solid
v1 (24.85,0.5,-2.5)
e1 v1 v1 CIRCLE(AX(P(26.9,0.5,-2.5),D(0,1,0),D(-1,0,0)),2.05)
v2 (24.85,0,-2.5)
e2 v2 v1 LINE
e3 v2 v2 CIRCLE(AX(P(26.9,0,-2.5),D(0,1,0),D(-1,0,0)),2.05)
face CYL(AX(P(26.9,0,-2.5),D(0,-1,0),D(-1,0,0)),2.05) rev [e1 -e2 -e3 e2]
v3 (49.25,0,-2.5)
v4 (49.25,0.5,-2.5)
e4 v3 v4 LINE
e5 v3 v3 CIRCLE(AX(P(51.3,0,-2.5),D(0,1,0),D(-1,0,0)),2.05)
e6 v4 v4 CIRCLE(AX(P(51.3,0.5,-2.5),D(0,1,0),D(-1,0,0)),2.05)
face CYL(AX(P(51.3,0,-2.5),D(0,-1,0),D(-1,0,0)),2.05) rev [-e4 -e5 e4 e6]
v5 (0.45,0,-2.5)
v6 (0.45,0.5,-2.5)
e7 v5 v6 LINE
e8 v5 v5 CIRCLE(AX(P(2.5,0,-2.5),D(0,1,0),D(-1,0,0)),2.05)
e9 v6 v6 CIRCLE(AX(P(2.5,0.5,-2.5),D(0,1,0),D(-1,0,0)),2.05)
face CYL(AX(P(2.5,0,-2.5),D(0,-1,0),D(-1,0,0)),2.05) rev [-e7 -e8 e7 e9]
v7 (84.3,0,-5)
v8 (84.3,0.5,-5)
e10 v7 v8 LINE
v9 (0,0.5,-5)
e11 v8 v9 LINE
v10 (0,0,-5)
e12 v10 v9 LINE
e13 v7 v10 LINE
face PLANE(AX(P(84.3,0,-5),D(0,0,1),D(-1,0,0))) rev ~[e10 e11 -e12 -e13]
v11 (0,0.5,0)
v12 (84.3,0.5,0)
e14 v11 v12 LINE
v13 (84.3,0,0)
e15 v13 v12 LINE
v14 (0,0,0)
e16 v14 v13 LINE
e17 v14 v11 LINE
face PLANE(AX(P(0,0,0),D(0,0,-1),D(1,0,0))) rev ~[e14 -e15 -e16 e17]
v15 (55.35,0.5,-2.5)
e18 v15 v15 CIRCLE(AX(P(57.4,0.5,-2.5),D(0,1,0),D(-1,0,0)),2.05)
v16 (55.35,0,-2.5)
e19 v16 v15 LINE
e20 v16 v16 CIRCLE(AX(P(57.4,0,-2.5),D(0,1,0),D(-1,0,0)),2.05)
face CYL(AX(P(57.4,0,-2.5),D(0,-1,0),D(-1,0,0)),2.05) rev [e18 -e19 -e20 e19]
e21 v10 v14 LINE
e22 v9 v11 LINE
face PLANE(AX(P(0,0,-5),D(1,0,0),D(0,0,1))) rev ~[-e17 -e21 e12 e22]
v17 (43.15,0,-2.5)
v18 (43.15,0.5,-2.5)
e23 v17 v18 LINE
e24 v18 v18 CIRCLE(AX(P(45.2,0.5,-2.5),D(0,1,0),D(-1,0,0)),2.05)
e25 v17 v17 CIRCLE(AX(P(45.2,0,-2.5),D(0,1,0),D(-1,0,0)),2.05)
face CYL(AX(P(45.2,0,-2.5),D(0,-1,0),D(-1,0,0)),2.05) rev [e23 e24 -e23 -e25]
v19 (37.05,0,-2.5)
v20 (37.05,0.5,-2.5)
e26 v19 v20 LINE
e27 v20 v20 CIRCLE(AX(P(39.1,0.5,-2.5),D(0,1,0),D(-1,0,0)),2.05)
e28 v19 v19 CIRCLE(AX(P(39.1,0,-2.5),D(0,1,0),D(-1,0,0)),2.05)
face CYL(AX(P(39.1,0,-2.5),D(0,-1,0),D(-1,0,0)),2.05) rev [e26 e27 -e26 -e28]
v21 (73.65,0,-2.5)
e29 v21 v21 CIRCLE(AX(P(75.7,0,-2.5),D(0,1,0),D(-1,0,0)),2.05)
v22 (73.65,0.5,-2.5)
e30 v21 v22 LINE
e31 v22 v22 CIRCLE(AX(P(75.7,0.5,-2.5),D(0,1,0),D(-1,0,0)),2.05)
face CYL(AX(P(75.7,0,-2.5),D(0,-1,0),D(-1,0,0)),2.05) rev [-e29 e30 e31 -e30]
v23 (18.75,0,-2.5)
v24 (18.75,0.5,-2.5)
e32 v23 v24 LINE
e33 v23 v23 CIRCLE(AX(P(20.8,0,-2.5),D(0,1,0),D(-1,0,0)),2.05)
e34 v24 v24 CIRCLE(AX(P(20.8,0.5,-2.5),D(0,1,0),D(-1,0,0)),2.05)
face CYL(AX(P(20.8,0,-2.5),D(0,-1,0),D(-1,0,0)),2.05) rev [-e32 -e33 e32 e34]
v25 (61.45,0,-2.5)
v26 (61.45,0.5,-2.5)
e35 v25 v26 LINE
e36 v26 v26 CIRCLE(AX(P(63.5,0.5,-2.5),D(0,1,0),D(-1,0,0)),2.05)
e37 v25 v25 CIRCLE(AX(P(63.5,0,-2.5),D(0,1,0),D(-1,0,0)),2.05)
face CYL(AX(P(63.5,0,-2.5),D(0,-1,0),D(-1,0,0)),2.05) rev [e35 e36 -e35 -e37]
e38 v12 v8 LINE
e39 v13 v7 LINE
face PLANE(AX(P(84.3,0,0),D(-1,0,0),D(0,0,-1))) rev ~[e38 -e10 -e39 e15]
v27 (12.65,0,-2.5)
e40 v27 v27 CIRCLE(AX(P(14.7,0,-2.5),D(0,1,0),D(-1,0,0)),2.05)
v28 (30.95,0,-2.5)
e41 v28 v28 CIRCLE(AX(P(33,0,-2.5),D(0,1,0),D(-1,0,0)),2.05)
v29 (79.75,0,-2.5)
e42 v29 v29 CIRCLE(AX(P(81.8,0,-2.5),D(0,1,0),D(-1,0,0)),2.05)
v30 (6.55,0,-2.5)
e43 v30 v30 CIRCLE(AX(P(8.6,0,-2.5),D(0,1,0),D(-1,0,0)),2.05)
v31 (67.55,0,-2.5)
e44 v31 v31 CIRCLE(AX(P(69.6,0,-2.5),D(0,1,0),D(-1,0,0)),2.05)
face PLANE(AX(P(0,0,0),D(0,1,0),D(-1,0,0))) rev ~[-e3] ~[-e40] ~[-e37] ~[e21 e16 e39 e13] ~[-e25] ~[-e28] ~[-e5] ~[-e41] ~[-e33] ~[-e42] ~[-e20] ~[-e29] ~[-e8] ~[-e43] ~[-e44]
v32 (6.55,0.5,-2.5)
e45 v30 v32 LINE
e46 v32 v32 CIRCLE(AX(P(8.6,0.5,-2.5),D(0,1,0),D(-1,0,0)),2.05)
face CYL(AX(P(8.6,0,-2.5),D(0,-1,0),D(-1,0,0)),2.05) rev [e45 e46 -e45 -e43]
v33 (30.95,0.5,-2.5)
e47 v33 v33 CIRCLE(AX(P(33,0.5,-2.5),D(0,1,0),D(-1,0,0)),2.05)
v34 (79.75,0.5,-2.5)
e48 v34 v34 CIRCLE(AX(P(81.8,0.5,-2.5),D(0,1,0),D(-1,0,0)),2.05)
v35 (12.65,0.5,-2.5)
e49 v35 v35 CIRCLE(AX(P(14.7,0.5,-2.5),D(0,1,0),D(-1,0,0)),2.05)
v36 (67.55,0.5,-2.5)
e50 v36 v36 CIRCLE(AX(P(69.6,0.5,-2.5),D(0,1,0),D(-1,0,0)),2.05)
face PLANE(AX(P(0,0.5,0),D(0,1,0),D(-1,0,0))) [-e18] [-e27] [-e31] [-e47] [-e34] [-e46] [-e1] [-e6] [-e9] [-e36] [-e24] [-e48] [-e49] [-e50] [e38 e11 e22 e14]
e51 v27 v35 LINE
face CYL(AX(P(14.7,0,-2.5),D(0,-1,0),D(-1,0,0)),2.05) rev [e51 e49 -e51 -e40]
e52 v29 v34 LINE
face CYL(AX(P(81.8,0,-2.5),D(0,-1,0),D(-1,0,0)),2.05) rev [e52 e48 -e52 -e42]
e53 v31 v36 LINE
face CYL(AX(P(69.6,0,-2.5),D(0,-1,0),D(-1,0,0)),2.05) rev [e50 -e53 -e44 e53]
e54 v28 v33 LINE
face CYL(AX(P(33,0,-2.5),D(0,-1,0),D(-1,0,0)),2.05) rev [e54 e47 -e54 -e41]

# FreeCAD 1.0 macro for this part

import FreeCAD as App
import Part
import Sketcher

V = App.Vector


def add_polygon(sketch, points):
    """Adds a closed chain of lines whose ends are joined by coincident constraints."""
    first, n = sketch.GeometryCount, len(points)
    for a, b in zip(points, points[1:] + points[:1]):
        sketch.addGeometry(Part.LineSegment(App.Vector(*a, 0), App.Vector(*b, 0)), False)
    for i in range(n):
        sketch.addConstraint(Sketcher.Constraint("Coincident", first + i, 2, first + (i + 1) % n, 1))

doc = App.newDocument("Part")
body = doc.addObject("PartDesign::Body", "Body")

sketch1 = body.newObject("Sketcher::SketchObject", "Sketch")
sketch1.AttachmentSupport = (doc.getObject("XZ_Plane"), [""])
sketch1.MapMode = "FlatFace"
add_polygon(sketch1, [(0, -5), (0, 0), (84.3, 0), (84.3, -5)])
sketch1.addGeometry(Part.Circle(V(81.8, -2.5, 0), V(0, 0, 1), 2), False)
sketch1.addGeometry(Part.Circle(V(75.7, -2.5, 0), V(0, 0, 1), 2), False)
sketch1.addGeometry(Part.Circle(V(69.6, -2.5, 0), V(0, 0, 1), 2), False)
sketch1.addGeometry(Part.Circle(V(63.5, -2.5, 0), V(0, 0, 1), 2), False)
sketch1.addGeometry(Part.Circle(V(57.4, -2.5, 0), V(0, 0, 1), 2), False)
sketch1.addGeometry(Part.Circle(V(51.3, -2.5, 0), V(0, 0, 1), 2), False)
sketch1.addGeometry(Part.Circle(V(45.2, -2.5, 0), V(0, 0, 1), 2), False)
sketch1.addGeometry(Part.Circle(V(39.1, -2.5, 0), V(0, 0, 1), 2), False)
sketch1.addGeometry(Part.Circle(V(33, -2.5, 0), V(0, 0, 1), 2), False)
sketch1.addGeometry(Part.Circle(V(26.9, -2.5, 0), V(0, 0, 1), 2), False)
sketch1.addGeometry(Part.Circle(V(20.8, -2.5, 0), V(0, 0, 1), 2), False)
sketch1.addGeometry(Part.Circle(V(14.7, -2.5, 0), V(0, 0, 1), 2), False)
sketch1.addGeometry(Part.Circle(V(8.6, -2.5, 0), V(0, 0, 1), 2), False)
sketch1.addGeometry(Part.Circle(V(2.5, -2.5, 0), V(0, 0, 1), 2), False)
sketch1.addConstraint(Sketcher.Constraint("Vertical", 0))
sketch1.addConstraint(Sketcher.Constraint("Horizontal", 1))
sketch1.addConstraint(Sketcher.Constraint("Vertical", 2))
sketch1.addConstraint(Sketcher.Constraint("Horizontal", 3))
sketch1.addConstraint(Sketcher.Constraint("Coincident", 0, 2, -1, 1))
sketch1.addConstraint(Sketcher.Constraint("Equal", 4, 5))
sketch1.addConstraint(Sketcher.Constraint("Equal", 5, 6))
sketch1.addConstraint(Sketcher.Constraint("Equal", 6, 7))
sketch1.addConstraint(Sketcher.Constraint("Equal", 7, 8))
sketch1.addConstraint(Sketcher.Constraint("Equal", 8, 9))
sketch1.addConstraint(Sketcher.Constraint("Equal", 9, 10))
sketch1.addConstraint(Sketcher.Constraint("Equal", 10, 11))
sketch1.addConstraint(Sketcher.Constraint("Equal", 11, 12))
sketch1.addConstraint(Sketcher.Constraint("Equal", 12, 13))
sketch1.addConstraint(Sketcher.Constraint("Equal", 13, 14))
sketch1.addConstraint(Sketcher.Constraint("Equal", 14, 15))
sketch1.addConstraint(Sketcher.Constraint("Equal", 15, 16))
sketch1.addConstraint(Sketcher.Constraint("Equal", 16, 17))
sketch1.addConstraint(Sketcher.Constraint("Horizontal", 4, 3, 5, 3))
sketch1.addConstraint(Sketcher.Constraint("Horizontal", 5, 3, 6, 3))
sketch1.addConstraint(Sketcher.Constraint("Horizontal", 6, 3, 7, 3))
sketch1.addConstraint(Sketcher.Constraint("Horizontal", 7, 3, 8, 3))
sketch1.addConstraint(Sketcher.Constraint("Horizontal", 8, 3, 9, 3))
sketch1.addConstraint(Sketcher.Constraint("Horizontal", 9, 3, 10, 3))
sketch1.addConstraint(Sketcher.Constraint("Horizontal", 10, 3, 11, 3))
sketch1.addConstraint(Sketcher.Constraint("Horizontal", 11, 3, 12, 3))
sketch1.addConstraint(Sketcher.Constraint("Horizontal", 12, 3, 13, 3))
sketch1.addConstraint(Sketcher.Constraint("Horizontal", 13, 3, 14, 3))
sketch1.addConstraint(Sketcher.Constraint("Horizontal", 14, 3, 15, 3))
sketch1.addConstraint(Sketcher.Constraint("Horizontal", 15, 3, 16, 3))
sketch1.addConstraint(Sketcher.Constraint("Horizontal", 16, 3, 17, 3))
sketch1.addConstraint(Sketcher.Constraint("Diameter", 4, 4.1))
sketch1.addConstraint(Sketcher.Constraint("DistanceY", 0, 1, 0, 2, 5.0))
sketch1.addConstraint(Sketcher.Constraint("DistanceY", 4, 3, -1, 1, 2.5))
sketch1.addConstraint(Sketcher.Constraint("DistanceX", -1, 1, 17, 3, 2.5))
sketch1.addConstraint(Sketcher.Constraint("DistanceX", 5, 3, 4, 3, 6.1))
sketch1.addConstraint(Sketcher.Constraint("DistanceX", 6, 3, 5, 3, 6.1))
sketch1.addConstraint(Sketcher.Constraint("DistanceX", 7, 3, 6, 3, 6.1))
sketch1.addConstraint(Sketcher.Constraint("DistanceX", 8, 3, 7, 3, 6.1))
sketch1.addConstraint(Sketcher.Constraint("DistanceX", 9, 3, 8, 3, 6.1))
sketch1.addConstraint(Sketcher.Constraint("DistanceX", 10, 3, 9, 3, 6.1))
sketch1.addConstraint(Sketcher.Constraint("DistanceX", 11, 3, 10, 3, 6.1))
sketch1.addConstraint(Sketcher.Constraint("DistanceX", 12, 3, 11, 3, 6.1))
sketch1.addConstraint(Sketcher.Constraint("DistanceX", 13, 3, 12, 3, 6.1))
sketch1.addConstraint(Sketcher.Constraint("DistanceX", 14, 3, 13, 3, 6.1))
sketch1.addConstraint(Sketcher.Constraint("DistanceX", 15, 3, 14, 3, 6.1))
sketch1.addConstraint(Sketcher.Constraint("DistanceX", 16, 3, 15, 3, 6.1))
sketch1.addConstraint(Sketcher.Constraint("DistanceX", 17, 3, 16, 3, 6.1))
sketch1.addConstraint(Sketcher.Constraint("DistanceX", 4, 3, 1, 2, 2.5))
pad1 = body.newObject("PartDesign::Pad", "Pad")
pad1.Profile = sketch1
pad1.Length = 0.5
pad1.Reversed = True

doc.recompute()
